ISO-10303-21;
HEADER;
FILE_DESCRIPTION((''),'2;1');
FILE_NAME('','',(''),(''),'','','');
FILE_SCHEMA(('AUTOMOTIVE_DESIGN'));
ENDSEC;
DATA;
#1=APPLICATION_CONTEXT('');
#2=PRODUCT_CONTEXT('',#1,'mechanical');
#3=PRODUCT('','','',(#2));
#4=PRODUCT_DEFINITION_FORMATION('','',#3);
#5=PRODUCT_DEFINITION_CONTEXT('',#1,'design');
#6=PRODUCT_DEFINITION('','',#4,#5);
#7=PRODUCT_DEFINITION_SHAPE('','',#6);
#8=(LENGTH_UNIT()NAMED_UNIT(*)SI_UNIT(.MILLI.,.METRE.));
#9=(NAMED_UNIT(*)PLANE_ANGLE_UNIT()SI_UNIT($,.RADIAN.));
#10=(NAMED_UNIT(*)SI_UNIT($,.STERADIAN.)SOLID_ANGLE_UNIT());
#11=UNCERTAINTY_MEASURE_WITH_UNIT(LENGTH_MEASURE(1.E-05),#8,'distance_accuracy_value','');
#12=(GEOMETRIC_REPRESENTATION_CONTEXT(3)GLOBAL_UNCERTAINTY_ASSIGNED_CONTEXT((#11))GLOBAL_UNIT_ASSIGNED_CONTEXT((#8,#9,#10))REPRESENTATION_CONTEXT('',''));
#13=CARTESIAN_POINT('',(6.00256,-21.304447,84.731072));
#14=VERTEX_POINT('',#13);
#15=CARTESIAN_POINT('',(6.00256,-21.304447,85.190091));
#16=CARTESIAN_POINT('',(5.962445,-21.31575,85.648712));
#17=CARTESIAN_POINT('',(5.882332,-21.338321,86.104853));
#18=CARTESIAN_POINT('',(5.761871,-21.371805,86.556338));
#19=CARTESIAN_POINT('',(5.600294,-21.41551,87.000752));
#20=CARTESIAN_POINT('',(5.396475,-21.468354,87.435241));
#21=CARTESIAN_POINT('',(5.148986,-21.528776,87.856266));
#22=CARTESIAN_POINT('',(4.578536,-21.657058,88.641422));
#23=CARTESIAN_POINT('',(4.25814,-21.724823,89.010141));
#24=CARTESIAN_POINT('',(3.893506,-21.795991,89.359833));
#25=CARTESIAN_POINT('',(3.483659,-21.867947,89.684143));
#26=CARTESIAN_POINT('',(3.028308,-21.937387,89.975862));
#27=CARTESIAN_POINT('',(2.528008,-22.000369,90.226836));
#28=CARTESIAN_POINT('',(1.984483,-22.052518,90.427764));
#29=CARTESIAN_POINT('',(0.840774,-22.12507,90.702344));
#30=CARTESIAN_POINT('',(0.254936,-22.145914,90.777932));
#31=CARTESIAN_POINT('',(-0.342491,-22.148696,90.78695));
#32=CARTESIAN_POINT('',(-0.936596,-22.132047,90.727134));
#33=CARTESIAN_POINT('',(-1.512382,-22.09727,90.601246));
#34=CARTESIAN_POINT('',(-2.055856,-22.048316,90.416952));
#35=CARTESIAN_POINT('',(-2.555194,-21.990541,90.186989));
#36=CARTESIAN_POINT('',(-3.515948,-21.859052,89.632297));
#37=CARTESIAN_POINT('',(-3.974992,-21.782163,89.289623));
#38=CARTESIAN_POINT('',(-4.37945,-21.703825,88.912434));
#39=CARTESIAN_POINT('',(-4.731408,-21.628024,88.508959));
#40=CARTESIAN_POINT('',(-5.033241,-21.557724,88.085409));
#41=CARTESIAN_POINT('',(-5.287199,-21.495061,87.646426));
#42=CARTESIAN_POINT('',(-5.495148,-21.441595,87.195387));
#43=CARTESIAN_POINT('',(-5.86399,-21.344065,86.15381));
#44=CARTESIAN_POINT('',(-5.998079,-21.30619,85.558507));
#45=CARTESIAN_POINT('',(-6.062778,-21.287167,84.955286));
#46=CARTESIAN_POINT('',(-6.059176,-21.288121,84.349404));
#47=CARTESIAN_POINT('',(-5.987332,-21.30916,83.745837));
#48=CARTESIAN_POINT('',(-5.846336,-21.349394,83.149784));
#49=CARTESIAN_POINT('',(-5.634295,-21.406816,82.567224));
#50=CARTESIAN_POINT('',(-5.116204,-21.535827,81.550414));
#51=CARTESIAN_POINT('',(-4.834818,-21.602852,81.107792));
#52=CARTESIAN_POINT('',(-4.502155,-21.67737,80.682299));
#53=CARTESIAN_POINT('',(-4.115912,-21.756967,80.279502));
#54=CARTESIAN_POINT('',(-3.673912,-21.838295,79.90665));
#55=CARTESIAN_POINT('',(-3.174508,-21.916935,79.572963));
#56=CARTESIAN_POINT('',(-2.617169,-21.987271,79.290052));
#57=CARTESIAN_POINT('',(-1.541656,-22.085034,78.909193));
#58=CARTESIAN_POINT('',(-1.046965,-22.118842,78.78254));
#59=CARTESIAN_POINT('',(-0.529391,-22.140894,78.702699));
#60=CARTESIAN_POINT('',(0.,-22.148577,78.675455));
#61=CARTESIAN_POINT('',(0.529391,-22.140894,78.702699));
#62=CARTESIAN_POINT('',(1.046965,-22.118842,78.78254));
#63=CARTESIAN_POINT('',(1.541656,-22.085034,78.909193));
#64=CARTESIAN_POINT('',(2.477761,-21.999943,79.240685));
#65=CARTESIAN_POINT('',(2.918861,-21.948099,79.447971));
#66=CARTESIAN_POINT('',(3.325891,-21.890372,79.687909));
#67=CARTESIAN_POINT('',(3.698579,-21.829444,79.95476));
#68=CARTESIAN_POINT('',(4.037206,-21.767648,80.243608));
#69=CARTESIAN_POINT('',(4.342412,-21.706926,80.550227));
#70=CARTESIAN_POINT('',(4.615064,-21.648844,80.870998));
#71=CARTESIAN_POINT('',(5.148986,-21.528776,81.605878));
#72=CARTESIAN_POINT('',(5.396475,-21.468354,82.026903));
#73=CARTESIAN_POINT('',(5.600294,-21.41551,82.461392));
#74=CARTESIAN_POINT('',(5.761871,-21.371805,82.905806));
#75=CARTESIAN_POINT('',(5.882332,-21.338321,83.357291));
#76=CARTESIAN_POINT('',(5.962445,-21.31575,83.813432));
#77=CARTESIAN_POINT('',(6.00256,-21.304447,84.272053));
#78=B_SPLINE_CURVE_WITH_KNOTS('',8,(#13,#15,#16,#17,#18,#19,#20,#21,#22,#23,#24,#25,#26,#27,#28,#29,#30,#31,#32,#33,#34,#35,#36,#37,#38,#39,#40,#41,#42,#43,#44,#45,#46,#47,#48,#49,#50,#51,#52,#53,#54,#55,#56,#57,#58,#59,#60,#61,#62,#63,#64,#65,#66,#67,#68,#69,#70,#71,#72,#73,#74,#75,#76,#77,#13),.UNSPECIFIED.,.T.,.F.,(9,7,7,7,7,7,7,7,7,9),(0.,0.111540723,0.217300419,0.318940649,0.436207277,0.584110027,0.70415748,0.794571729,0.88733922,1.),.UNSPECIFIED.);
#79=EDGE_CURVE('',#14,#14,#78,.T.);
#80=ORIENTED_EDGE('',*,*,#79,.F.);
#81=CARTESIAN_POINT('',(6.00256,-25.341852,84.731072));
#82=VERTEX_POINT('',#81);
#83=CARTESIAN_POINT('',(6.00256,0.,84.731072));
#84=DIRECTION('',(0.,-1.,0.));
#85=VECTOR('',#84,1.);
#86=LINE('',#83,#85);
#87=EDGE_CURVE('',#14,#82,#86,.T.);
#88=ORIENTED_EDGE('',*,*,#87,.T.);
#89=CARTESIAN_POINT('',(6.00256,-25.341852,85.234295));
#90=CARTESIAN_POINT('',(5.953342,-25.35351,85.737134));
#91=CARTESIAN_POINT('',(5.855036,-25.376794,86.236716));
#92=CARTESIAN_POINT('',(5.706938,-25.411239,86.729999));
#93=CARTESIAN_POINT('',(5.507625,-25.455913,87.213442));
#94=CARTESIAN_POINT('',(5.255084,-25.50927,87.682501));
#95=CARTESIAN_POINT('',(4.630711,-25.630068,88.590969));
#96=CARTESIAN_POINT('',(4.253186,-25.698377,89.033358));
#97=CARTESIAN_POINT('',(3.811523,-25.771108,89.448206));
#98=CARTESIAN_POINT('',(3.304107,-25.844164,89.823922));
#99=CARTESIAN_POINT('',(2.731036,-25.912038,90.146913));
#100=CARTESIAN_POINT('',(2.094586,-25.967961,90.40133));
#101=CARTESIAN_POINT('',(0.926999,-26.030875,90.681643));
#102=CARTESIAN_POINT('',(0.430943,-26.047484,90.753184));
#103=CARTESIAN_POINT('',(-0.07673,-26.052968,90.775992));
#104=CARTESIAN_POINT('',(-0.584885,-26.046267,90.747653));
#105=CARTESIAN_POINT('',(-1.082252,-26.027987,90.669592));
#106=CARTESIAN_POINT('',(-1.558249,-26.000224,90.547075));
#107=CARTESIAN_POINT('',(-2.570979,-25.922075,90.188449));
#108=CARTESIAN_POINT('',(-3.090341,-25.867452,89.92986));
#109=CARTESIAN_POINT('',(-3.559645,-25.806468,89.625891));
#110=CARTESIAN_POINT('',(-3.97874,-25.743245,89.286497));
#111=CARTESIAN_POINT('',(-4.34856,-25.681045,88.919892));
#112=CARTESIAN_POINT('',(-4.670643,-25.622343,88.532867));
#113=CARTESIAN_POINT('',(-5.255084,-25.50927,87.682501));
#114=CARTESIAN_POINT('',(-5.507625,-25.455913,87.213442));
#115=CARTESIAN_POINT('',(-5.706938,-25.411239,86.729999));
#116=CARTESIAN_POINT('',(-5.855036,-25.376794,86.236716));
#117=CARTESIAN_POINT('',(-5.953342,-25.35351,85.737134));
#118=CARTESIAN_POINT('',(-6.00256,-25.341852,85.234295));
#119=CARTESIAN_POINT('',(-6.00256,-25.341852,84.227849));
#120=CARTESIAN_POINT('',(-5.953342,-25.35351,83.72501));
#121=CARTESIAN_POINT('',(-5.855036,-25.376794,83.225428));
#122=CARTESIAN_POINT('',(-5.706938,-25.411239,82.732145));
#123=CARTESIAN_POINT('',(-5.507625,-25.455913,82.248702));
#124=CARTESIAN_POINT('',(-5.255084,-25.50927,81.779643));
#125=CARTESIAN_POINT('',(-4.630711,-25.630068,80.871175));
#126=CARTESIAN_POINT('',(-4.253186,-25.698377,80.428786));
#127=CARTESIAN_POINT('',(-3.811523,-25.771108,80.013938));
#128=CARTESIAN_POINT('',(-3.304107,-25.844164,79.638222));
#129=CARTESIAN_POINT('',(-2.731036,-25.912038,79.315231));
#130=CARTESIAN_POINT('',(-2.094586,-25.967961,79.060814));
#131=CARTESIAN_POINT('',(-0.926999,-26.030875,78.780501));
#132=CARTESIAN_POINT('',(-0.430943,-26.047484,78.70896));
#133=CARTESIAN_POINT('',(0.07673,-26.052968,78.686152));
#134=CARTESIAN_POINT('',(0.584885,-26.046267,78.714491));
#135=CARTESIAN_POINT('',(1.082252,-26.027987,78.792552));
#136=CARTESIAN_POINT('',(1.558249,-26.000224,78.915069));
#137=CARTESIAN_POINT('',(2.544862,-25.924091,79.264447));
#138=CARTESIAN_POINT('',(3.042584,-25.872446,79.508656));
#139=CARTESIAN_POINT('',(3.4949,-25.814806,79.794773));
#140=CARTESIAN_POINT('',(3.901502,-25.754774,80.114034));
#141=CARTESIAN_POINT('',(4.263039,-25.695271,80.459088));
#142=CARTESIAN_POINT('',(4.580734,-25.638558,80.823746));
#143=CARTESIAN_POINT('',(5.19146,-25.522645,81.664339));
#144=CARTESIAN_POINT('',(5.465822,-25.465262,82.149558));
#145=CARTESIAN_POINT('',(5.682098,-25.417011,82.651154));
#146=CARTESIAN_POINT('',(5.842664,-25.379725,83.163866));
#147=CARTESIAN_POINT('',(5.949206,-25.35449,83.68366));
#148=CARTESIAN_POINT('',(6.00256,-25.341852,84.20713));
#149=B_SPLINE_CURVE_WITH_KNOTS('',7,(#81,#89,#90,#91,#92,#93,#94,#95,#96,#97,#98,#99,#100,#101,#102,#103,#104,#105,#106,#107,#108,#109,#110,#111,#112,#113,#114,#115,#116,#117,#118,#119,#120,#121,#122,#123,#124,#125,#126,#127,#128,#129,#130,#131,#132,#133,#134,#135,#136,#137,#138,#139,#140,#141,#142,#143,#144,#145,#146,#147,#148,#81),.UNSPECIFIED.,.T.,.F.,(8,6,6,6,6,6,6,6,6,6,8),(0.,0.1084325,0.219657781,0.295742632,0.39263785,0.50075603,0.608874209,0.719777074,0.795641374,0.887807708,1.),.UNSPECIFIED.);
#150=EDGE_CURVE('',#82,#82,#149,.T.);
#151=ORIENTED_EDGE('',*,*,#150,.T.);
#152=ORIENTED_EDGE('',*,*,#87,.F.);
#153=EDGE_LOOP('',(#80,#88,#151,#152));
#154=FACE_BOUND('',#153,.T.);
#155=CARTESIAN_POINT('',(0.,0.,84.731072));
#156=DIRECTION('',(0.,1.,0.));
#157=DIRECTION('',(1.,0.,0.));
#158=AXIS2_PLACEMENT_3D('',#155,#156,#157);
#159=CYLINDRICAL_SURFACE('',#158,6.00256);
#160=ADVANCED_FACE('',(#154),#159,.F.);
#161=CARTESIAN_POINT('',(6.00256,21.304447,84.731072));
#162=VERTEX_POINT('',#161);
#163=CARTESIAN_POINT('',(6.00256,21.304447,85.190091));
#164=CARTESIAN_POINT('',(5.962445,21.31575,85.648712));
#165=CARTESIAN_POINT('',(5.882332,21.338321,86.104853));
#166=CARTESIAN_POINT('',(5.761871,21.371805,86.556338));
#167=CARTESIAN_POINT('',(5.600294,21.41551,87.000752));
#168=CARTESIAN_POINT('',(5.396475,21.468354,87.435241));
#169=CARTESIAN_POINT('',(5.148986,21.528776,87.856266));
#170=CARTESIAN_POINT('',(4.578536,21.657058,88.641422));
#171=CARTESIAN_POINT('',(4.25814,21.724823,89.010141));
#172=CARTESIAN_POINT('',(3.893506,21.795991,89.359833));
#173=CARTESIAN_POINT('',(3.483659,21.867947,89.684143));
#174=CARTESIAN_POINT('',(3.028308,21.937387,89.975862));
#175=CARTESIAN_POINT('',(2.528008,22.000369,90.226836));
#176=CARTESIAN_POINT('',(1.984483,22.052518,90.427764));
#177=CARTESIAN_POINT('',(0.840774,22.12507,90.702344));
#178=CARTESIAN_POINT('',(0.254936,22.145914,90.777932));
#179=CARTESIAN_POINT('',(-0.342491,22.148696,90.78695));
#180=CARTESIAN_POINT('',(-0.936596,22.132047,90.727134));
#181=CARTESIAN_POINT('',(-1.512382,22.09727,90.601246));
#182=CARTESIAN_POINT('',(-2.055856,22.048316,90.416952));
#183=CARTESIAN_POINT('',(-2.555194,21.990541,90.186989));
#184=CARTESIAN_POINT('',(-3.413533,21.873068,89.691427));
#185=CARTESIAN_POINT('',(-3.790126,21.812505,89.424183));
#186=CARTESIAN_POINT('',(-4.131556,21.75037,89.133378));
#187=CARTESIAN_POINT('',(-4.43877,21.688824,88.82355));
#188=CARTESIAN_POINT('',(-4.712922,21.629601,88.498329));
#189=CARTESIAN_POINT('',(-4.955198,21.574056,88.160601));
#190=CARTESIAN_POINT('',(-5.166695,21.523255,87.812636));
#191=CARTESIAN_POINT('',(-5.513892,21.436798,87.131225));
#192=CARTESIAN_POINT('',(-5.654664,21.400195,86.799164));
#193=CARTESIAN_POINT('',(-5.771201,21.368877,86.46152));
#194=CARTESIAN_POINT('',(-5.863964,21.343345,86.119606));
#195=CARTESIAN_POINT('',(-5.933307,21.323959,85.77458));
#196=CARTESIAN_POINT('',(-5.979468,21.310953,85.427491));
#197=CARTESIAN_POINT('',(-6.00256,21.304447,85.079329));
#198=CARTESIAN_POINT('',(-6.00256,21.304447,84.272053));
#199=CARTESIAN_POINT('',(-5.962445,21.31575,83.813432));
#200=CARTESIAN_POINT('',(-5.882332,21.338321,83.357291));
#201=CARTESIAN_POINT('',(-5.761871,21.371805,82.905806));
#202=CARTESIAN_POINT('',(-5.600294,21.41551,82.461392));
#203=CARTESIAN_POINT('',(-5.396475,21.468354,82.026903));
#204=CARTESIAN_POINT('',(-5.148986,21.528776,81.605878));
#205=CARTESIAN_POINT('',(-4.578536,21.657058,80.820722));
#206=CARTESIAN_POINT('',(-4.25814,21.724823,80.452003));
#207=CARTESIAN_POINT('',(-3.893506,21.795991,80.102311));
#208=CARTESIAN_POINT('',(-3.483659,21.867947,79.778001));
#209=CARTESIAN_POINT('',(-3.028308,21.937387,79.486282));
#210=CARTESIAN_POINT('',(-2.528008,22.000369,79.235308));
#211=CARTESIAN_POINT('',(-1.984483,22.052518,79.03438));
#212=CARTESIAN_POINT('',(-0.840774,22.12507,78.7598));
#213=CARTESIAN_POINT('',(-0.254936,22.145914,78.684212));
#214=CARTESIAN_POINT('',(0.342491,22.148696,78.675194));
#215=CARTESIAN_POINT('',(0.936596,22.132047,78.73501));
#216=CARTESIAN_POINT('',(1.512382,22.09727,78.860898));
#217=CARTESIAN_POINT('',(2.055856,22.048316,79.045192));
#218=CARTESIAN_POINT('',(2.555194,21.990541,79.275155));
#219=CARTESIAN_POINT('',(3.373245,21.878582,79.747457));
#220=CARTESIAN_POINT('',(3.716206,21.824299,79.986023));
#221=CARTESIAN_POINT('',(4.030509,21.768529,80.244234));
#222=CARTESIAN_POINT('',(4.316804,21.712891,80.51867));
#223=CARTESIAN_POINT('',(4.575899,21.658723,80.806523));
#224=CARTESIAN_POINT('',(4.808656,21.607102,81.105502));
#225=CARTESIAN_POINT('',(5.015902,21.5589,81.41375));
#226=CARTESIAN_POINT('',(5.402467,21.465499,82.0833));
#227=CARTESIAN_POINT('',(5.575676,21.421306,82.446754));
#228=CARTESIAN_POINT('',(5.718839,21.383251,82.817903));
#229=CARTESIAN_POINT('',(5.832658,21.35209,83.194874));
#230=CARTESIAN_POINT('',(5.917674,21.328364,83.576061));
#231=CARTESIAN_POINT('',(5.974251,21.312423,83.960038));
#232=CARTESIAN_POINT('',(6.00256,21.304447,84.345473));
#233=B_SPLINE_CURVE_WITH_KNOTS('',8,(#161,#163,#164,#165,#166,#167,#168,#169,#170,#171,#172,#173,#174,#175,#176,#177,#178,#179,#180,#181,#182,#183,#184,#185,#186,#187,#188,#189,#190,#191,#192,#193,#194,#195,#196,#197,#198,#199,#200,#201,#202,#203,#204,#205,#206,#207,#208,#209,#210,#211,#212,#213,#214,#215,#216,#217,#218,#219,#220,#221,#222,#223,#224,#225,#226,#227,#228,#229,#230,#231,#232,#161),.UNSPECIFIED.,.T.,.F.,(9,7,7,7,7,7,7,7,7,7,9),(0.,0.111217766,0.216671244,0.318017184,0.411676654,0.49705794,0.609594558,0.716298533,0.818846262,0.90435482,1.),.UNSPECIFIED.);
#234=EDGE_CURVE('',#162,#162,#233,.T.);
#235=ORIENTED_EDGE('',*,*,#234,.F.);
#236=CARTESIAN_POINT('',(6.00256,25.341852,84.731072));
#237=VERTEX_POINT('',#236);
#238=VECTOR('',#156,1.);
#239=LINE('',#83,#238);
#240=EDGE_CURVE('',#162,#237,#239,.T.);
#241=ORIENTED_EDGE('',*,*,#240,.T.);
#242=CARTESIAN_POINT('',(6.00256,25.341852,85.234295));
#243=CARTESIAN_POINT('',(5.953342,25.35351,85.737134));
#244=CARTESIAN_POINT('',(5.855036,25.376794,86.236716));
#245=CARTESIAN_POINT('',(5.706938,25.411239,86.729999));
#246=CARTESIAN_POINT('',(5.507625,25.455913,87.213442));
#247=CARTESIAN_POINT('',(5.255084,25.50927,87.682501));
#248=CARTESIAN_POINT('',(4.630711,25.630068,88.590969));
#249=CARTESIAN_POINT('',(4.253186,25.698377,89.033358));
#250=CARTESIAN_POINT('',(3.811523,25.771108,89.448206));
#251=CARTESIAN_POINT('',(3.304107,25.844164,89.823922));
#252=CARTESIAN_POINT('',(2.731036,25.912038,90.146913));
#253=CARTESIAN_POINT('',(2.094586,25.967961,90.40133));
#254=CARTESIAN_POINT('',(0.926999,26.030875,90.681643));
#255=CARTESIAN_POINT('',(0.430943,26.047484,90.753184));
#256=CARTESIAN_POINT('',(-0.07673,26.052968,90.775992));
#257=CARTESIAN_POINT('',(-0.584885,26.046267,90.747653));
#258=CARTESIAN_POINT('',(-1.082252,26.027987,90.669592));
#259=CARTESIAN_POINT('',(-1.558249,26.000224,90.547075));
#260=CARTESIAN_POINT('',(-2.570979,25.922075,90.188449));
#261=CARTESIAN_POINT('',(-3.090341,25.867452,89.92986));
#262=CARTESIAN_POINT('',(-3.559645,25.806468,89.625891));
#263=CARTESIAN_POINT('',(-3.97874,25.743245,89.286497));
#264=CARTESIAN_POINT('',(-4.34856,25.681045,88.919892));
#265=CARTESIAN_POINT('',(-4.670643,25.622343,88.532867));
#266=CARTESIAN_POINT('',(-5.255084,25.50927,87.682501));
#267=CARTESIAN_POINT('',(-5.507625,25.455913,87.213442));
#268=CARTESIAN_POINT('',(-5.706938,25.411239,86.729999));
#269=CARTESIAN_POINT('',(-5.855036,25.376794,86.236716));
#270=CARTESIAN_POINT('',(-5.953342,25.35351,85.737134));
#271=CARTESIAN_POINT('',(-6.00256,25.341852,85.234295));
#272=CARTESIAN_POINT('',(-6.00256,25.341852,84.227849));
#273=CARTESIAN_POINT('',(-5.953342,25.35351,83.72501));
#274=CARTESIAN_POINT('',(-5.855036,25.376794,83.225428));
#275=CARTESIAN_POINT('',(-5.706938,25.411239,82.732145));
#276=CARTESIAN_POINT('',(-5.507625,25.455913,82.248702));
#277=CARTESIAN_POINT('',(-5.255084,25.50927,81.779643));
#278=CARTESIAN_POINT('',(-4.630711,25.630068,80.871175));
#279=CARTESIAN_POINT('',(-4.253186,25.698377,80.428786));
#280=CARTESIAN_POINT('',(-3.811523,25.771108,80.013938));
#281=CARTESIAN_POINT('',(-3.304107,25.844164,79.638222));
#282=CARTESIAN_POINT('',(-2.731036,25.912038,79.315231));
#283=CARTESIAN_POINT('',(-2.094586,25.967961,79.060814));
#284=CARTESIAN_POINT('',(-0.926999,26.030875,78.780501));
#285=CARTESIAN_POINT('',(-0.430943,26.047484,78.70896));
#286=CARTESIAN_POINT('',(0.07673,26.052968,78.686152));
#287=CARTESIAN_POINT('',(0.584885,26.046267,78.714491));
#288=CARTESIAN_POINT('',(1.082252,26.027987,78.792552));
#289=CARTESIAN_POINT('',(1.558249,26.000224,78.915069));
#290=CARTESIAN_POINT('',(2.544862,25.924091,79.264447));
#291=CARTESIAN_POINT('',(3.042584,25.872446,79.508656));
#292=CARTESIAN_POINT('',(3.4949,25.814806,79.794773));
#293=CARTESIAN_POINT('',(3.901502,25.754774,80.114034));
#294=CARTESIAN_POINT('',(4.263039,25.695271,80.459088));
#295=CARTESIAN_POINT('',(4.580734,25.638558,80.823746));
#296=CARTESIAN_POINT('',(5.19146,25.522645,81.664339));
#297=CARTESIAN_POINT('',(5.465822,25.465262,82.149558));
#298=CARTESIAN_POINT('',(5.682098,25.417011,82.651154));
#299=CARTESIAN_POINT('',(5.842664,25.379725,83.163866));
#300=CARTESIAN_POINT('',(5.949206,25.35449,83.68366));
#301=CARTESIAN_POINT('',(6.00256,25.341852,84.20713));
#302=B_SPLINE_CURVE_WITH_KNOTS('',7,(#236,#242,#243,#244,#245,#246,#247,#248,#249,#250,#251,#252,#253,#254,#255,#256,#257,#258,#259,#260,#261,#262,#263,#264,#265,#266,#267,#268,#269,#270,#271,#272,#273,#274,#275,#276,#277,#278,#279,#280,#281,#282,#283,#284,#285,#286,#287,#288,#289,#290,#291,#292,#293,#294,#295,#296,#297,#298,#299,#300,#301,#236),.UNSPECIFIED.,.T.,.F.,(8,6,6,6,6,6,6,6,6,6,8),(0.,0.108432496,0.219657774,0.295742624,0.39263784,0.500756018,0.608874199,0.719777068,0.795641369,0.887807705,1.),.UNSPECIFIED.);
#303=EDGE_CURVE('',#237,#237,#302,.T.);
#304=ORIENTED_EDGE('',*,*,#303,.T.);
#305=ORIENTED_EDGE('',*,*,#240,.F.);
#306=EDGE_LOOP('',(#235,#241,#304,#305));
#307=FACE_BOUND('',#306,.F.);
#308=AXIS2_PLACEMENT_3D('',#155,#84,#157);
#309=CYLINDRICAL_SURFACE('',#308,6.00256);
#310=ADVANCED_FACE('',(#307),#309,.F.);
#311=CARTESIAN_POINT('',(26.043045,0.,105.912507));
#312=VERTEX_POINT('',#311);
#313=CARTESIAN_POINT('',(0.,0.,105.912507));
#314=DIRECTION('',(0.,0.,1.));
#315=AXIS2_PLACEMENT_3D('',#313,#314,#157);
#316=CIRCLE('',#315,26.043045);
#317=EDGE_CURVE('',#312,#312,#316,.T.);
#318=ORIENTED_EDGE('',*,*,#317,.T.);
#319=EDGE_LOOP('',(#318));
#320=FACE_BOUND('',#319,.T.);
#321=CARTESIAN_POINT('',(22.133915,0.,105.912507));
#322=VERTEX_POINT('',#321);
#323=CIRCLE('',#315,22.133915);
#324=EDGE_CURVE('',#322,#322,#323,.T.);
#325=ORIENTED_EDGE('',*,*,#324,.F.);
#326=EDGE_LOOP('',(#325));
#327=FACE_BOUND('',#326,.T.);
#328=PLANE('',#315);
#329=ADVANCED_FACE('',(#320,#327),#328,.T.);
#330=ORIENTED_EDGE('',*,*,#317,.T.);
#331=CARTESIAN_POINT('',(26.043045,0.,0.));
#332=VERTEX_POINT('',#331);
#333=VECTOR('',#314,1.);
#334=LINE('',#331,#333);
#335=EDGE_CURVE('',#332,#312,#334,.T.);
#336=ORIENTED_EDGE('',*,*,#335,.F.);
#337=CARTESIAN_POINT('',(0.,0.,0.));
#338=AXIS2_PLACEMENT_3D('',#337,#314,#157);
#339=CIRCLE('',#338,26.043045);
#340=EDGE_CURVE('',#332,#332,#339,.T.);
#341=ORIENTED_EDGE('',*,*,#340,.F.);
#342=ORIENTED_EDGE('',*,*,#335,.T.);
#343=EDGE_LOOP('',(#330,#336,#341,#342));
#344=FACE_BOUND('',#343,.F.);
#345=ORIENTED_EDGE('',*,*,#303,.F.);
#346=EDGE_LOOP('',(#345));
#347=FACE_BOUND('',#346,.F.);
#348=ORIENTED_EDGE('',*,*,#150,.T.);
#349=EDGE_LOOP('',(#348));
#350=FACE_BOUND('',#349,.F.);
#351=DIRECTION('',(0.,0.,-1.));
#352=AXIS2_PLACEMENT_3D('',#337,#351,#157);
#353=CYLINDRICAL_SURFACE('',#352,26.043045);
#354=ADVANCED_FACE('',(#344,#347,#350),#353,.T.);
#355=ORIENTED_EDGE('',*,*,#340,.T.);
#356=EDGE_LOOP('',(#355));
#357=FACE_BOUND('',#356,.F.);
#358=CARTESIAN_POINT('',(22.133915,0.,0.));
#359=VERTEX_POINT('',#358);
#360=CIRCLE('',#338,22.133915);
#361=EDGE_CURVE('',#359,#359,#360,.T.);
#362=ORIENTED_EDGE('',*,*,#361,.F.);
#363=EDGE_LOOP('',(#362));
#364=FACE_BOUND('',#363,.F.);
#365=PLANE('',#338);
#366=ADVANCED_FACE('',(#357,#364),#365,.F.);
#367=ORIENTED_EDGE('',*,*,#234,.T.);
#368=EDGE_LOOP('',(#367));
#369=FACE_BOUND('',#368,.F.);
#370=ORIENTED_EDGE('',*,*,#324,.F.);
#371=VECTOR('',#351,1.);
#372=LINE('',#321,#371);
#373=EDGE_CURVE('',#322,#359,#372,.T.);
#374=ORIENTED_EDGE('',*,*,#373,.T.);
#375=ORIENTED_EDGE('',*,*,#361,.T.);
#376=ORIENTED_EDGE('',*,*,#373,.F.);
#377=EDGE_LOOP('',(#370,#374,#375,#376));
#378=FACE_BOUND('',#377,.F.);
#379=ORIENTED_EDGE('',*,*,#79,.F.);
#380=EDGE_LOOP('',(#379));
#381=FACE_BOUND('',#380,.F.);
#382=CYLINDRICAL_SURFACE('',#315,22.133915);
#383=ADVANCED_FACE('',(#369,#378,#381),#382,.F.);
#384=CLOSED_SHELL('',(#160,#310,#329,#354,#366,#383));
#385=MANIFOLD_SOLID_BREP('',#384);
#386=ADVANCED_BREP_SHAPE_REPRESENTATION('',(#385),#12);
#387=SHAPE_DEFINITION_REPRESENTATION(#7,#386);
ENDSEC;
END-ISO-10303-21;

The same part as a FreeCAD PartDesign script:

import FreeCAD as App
import Part
import Sketcher

doc = App.newDocument("Part")
params = doc.addObject("Spreadsheet::Sheet", "Params")
for row, (alias, value) in enumerate([
    ("pad1_length", "105.912507 mm"),
    ("pad2_length", "88.553265 mm"),
    ("pocket1_length", "185.232297 mm"),
], start=1):
    params.set(f"A{row}", alias)
    params.set(f"B{row}", "=" + value)
    params.setAlias(f"B{row}", alias)

body = doc.addObject("PartDesign::Body", "Body")

sketch1 = body.newObject("Sketcher::SketchObject", "Sketch")
sketch1.AttachmentSupport = (doc.getObject("XY_Plane"), [""])
sketch1.MapMode = "FlatFace"
sketch1.addGeometry(Part.Circle(App.Vector(0, 0, 0), App.Vector(0, 0, 1), 26.043045), False)
sketch1.addConstraint([
    Sketcher.Constraint("Coincident", 0, 3, -1, 1),
    Sketcher.Constraint("Diameter", 0, 52.08609),
])
pad1 = body.newObject("PartDesign::Pad", "Pad")
pad1.Profile = sketch1
pad1.setExpression("Length", "Params.pad1_length")

sketch2 = body.newObject("Sketcher::SketchObject", "Sketch001")
sketch2.AttachmentSupport = (doc.getObject("XY_Plane"), [""])
sketch2.MapMode = "FlatFace"
sketch2.AttachmentOffset = App.Placement(App.Vector(0, 0, 105.912507), App.Rotation())
sketch2.addGeometry(Part.Circle(App.Vector(0, 0, 0), App.Vector(0, 0, 1), 26.043045), False)
sketch2.addConstraint([
    Sketcher.Constraint("Coincident", 0, 3, -1, 1),
    Sketcher.Constraint("Diameter", 0, 52.08609),
])
pad2 = body.newObject("PartDesign::Pad", "Pad001")
pad2.Profile = sketch2
pad2.setExpression("Length", "Params.pad2_length")
pad2.Reversed = True

sketch3 = body.newObject("Sketcher::SketchObject", "Sketch002")
sketch3.AttachmentSupport = (doc.getObject("XY_Plane"), [""])
sketch3.MapMode = "FlatFace"
sketch3.AttachmentOffset = App.Placement(App.Vector(0, 0, 105.912507), App.Rotation())
sketch3.addGeometry(Part.Circle(App.Vector(0, 0, 0), App.Vector(0, 0, 1), 22.133915), False)
sketch3.addConstraint([
    Sketcher.Constraint("Coincident", 0, 3, -1, 1),
    Sketcher.Constraint("Diameter", 0, 44.26783),
])
pocket1 = body.newObject("PartDesign::Pocket", "Pocket")
pocket1.Profile = sketch3
pocket1.setExpression("Length", "Params.pocket1_length")

sketch4 = body.newObject("Sketcher::SketchObject", "Sketch003")
sketch4.AttachmentSupport = (doc.getObject("XZ_Plane"), [""])
sketch4.MapMode = "FlatFace"
sketch4.addGeometry(Part.Circle(App.Vector(0, 84.731072, 0), App.Vector(0, 0, 1), 6.00256), False)
sketch4.addConstraint([
    Sketcher.Constraint("PointOnObject", 0, 3, -2),
    Sketcher.Constraint("Diameter", 0, 12.00512),
    Sketcher.Constraint("DistanceY", -1, 1, 0, 3, 84.731072),
])
pocket2 = body.newObject("PartDesign::Pocket", "Pocket001")
pocket2.Profile = sketch4
pocket2.Type = "ThroughAll"
pocket2.Midplane = True

doc.recompute()
